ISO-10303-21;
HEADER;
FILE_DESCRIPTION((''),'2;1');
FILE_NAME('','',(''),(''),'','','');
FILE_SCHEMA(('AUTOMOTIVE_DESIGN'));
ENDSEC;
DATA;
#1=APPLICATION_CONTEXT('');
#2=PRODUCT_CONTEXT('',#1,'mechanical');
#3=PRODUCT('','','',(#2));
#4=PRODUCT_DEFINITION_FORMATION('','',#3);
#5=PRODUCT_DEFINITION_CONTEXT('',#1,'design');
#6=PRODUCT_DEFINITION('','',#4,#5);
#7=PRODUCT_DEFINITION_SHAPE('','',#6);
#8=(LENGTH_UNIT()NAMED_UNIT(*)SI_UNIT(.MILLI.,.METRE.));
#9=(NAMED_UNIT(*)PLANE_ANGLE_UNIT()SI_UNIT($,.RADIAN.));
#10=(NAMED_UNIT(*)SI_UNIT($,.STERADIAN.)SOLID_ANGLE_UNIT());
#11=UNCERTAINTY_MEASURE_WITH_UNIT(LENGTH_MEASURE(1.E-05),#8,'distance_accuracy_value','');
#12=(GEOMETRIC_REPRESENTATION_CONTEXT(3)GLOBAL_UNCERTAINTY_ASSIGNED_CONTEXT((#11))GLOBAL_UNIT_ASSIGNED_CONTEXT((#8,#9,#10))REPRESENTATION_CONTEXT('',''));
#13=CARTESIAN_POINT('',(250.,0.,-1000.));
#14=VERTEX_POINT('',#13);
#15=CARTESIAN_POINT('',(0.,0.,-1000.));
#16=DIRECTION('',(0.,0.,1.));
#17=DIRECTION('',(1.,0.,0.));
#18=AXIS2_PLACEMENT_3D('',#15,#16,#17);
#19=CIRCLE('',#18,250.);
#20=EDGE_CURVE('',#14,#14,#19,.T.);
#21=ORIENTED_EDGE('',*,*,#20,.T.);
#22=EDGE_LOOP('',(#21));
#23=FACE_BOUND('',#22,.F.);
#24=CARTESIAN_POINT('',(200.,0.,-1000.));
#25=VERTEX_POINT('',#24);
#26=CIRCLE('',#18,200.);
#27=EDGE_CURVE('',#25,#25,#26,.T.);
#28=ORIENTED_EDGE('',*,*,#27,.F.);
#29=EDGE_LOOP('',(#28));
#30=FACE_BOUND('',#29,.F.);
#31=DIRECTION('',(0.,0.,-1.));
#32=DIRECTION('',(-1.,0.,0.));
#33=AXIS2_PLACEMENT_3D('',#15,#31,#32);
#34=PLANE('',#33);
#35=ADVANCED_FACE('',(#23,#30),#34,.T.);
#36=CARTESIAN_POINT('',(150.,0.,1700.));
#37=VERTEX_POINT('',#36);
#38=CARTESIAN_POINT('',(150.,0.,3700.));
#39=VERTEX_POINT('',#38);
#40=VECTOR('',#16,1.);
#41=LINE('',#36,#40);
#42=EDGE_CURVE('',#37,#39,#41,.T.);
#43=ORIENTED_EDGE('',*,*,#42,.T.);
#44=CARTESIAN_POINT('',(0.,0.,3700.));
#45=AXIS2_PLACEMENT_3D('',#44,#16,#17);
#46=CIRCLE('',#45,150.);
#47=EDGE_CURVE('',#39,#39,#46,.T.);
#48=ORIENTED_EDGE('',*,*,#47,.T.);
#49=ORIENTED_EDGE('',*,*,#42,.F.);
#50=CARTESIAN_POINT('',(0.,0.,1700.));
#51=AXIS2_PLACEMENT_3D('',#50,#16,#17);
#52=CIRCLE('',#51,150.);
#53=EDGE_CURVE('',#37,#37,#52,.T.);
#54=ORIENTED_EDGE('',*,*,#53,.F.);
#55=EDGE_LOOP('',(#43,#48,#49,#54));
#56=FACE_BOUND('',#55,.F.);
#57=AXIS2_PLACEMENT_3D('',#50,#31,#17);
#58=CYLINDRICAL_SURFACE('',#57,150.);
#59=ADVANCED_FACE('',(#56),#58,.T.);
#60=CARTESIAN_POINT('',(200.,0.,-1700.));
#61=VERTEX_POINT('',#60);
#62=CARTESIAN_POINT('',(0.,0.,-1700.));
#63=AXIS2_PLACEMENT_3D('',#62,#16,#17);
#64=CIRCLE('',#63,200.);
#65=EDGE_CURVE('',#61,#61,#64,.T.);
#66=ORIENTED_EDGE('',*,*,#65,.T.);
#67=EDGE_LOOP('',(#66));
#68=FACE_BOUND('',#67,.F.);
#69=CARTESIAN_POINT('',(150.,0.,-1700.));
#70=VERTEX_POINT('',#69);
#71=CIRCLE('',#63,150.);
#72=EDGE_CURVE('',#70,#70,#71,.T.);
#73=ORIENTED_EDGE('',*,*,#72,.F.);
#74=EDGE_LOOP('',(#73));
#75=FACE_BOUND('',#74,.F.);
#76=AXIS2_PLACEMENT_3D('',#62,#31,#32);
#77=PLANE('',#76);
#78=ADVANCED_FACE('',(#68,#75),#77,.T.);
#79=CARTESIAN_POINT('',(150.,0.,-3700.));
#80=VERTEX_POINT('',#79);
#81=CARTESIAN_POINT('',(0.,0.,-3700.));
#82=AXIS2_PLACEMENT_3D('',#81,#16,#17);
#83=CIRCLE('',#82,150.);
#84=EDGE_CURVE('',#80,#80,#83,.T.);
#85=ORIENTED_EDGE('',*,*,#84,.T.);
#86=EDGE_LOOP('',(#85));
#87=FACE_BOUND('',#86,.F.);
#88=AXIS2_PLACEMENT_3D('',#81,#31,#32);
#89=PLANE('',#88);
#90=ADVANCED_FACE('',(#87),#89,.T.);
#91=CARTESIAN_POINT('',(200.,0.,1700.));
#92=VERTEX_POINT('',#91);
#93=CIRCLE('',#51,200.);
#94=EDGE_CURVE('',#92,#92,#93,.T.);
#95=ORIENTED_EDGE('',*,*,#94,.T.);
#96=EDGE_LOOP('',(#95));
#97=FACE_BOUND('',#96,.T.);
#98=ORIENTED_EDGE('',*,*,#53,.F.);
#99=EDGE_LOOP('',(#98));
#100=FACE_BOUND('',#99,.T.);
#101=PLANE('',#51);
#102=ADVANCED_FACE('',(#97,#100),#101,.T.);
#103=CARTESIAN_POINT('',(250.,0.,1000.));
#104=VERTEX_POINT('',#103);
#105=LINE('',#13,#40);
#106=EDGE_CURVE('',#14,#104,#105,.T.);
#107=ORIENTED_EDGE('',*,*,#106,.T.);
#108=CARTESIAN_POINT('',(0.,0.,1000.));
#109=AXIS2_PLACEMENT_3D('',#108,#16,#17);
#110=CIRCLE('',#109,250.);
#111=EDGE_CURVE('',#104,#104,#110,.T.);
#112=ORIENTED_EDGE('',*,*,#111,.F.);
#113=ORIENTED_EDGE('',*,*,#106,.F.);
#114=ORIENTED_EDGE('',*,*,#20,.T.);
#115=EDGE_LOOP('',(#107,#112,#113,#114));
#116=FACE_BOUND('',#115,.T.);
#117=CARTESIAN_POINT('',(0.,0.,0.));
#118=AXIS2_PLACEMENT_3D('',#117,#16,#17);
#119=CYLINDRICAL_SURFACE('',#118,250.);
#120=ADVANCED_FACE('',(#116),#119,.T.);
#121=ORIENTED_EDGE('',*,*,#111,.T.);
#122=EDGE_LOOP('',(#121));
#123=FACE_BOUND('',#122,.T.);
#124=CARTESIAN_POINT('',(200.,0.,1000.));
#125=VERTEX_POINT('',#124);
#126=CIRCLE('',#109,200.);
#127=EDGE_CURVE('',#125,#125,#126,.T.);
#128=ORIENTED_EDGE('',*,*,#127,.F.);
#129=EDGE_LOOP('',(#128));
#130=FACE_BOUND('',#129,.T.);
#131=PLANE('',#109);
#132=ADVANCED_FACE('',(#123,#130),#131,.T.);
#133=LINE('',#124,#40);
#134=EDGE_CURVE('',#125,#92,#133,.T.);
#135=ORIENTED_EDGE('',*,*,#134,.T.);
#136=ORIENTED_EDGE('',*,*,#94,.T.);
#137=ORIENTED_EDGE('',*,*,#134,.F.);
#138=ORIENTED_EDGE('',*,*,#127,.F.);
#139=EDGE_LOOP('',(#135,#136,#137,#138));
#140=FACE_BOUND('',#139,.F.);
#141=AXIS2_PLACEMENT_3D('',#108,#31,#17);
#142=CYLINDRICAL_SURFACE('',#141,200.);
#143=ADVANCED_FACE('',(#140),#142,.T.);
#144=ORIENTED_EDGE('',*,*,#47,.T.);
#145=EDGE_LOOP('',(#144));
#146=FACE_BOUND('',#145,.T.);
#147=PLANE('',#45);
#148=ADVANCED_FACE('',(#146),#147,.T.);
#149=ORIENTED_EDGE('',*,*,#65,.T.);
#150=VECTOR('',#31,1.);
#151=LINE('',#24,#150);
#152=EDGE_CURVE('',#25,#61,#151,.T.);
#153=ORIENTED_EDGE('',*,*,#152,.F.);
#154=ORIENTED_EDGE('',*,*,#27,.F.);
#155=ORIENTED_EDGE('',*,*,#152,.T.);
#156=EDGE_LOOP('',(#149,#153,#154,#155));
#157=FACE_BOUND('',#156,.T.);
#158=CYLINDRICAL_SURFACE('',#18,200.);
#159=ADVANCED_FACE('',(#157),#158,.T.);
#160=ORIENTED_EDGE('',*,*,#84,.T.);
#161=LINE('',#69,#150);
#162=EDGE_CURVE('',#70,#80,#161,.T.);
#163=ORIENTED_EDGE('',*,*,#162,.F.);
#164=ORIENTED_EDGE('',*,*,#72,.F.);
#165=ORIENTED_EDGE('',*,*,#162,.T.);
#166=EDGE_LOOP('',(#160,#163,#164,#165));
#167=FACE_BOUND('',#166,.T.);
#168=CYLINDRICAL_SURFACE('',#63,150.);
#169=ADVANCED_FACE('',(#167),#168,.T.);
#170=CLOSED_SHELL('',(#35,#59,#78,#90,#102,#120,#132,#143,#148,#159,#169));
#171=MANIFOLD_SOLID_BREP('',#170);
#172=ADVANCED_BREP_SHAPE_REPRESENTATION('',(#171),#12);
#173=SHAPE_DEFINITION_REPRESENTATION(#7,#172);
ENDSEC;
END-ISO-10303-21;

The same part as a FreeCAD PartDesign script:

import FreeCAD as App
import Part
import Sketcher
from FreeCAD import Vector

doc = App.newDocument("Part")
body = doc.addObject("PartDesign::Body", "Body")

# Sketch on XY plane
sketch1 = doc.addObject("Sketcher::SketchObject", "Sketch")
body.addObject(sketch1)
sketch1.AttachmentSupport = (doc.XY_Plane, [""])
sketch1.MapMode = "FlatFace"
sketch1.addGeometry(Part.Circle(Vector(0, 0, 0), Vector(0, 0, 1), 250), False)
sketch1.addConstraint([
    Sketcher.Constraint("Coincident", 0, 3, -1, 1),
    Sketcher.Constraint("Diameter", 0, 500.0),
])
pad1 = doc.addObject("PartDesign::Pad", "Pad")
body.addObject(pad1)
pad1.Profile = sketch1
pad1.Length = 1000

# Sketch on XY plane
sketch2 = doc.addObject("Sketcher::SketchObject", "Sketch001")
body.addObject(sketch2)
sketch2.AttachmentSupport = (doc.XY_Plane, [""])
sketch2.MapMode = "FlatFace"
sketch2.AttachmentOffset = App.Placement(Vector(0, 0, 1000), App.Rotation())
sketch2.addGeometry(Part.Circle(Vector(0, 0, 0), Vector(0, 0, 1), 200), False)
sketch2.addConstraint([
    Sketcher.Constraint("Coincident", 0, 3, -1, 1),
    Sketcher.Constraint("Diameter", 0, 400.0),
])
pad2 = doc.addObject("PartDesign::Pad", "Pad001")
body.addObject(pad2)
pad2.Profile = sketch2
pad2.Length = 700

# Sketch on XY plane
sketch3 = doc.addObject("Sketcher::SketchObject", "Sketch002")
body.addObject(sketch3)
sketch3.AttachmentSupport = (doc.XY_Plane, [""])
sketch3.MapMode = "FlatFace"
sketch3.AttachmentOffset = App.Placement(Vector(0, 0, 1700), App.Rotation())
sketch3.addGeometry(Part.Circle(Vector(0, 0, 0), Vector(0, 0, 1), 150), False)
sketch3.addConstraint([
    Sketcher.Constraint("Coincident", 0, 3, -1, 1),
    Sketcher.Constraint("Diameter", 0, 300.0),
])
pad3 = doc.addObject("PartDesign::Pad", "Pad002")
body.addObject(pad3)
pad3.Profile = sketch3
pad3.Length = 2000
doc.recompute()

mirrored = doc.addObject("PartDesign::Mirrored", "Mirrored")
body.addObject(mirrored)
mirrored.Originals = [pad3, pad2, pad1]
mirrored.MirrorPlane = (doc.XY_Plane, [""])
body.Tip = mirrored

doc.recompute()
